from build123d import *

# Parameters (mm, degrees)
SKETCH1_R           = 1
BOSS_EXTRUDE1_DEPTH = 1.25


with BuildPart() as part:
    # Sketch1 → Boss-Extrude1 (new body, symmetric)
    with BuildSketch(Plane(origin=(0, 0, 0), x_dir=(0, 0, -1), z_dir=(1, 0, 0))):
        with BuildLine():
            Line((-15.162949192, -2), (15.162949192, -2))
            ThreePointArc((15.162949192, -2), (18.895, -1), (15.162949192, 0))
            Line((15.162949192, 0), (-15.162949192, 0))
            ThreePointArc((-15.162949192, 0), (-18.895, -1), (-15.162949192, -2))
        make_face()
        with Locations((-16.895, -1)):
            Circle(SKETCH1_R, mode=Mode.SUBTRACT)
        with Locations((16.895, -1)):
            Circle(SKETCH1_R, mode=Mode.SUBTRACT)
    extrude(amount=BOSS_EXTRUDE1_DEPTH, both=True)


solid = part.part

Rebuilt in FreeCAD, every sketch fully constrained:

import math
import FreeCAD as App
import Part
import Sketcher
from FreeCAD import Vector

doc = App.newDocument("Part")
params = doc.addObject("Spreadsheet::Sheet", "Params")
for row, (alias, value) in enumerate([
    ("sketch1_diameter", "2 mm"),
    ("sketch1_radius", "2 mm"),
    ("pad1_length", "2.5 mm"),
], start=1):
    params.set(f"A{row}", alias)
    params.set(f"B{row}", "=" + value)
    params.setAlias(f"B{row}", alias)

body = doc.addObject("PartDesign::Body", "Body")

sketch1 = doc.addObject("Sketcher::SketchObject", "Sketch")
body.addObject(sketch1)
sketch1.AttachmentSupport = (doc.YZ_Plane, [""])
sketch1.MapMode = "FlatFace"
sketch1.addGeometry(Part.LineSegment(Vector(-2, 15.162949, 0), Vector(-2, -15.162949, 0)), False)
sketch1.addGeometry(Part.ArcOfCircle(Part.Circle(Vector(-1, -16.895, 0), Vector(0, 0, 1), 2), math.radians(120), math.radians(420)), False)
sketch1.addGeometry(Part.LineSegment(Vector(0, -15.162949, 0), Vector(0, 15.162949, 0)), False)
sketch1.addGeometry(Part.ArcOfCircle(Part.Circle(Vector(-1, 16.895, 0), Vector(0, 0, 1), 2), math.radians(-60), math.radians(240)), False)
sketch1.addGeometry(Part.Circle(Vector(-1, 16.895, 0), Vector(0, 0, 1), 1), False)
sketch1.addGeometry(Part.Circle(Vector(-1, -16.895, 0), Vector(0, 0, 1), 1), False)
sketch1.addConstraint(Sketcher.Constraint("Coincident", 0, 2, 1, 1))
sketch1.addConstraint(Sketcher.Constraint("Coincident", 1, 2, 2, 1))
sketch1.addConstraint(Sketcher.Constraint("Coincident", 2, 2, 3, 1))
sketch1.addConstraint(Sketcher.Constraint("Coincident", 3, 2, 0, 1))
sketch1.addConstraint(Sketcher.Constraint("Vertical", 0))
sketch1.addConstraint(Sketcher.Constraint("Vertical", 2))
sketch1.addConstraint(Sketcher.Constraint("Coincident", 4, 3, 3, 3))
sketch1.addConstraint(Sketcher.Constraint("Coincident", 5, 3, 1, 3))
sketch1.addConstraint(Sketcher.Constraint("Equal", 1, 3))
sketch1.addConstraint(Sketcher.Constraint("Equal", 4, 5))
sketch1.addConstraint(Sketcher.Constraint("Symmetric", 1, 2, 2, 2, -1, 1))
sketch1.addConstraint(Sketcher.Constraint("Horizontal", 0, 2, 1, 2))
sketch1.addConstraint(Sketcher.Constraint("Horizontal", 2, 2, 3, 2))
sketch1.addConstraint(Sketcher.Constraint("Diameter", 4, 2.0))
sketch1.addConstraint(Sketcher.Constraint("Radius", 1, 2.0))
sketch1.addConstraint(Sketcher.Constraint("DistanceX", 1, 3, -1, 1, 1.0))
sketch1.addConstraint(Sketcher.Constraint("DistanceY", 1, 3, 3, 3, 33.79))
sketch1.setExpression("Constraints[13]", "Params.sketch1_diameter")
sketch1.setExpression("Constraints[14]", "Params.sketch1_radius")
pad1 = doc.addObject("PartDesign::Pad", "Pad")
body.addObject(pad1)
pad1.Profile = sketch1
pad1.setExpression("Length", "Params.pad1_length")
pad1.Midplane = True

doc.recompute()
